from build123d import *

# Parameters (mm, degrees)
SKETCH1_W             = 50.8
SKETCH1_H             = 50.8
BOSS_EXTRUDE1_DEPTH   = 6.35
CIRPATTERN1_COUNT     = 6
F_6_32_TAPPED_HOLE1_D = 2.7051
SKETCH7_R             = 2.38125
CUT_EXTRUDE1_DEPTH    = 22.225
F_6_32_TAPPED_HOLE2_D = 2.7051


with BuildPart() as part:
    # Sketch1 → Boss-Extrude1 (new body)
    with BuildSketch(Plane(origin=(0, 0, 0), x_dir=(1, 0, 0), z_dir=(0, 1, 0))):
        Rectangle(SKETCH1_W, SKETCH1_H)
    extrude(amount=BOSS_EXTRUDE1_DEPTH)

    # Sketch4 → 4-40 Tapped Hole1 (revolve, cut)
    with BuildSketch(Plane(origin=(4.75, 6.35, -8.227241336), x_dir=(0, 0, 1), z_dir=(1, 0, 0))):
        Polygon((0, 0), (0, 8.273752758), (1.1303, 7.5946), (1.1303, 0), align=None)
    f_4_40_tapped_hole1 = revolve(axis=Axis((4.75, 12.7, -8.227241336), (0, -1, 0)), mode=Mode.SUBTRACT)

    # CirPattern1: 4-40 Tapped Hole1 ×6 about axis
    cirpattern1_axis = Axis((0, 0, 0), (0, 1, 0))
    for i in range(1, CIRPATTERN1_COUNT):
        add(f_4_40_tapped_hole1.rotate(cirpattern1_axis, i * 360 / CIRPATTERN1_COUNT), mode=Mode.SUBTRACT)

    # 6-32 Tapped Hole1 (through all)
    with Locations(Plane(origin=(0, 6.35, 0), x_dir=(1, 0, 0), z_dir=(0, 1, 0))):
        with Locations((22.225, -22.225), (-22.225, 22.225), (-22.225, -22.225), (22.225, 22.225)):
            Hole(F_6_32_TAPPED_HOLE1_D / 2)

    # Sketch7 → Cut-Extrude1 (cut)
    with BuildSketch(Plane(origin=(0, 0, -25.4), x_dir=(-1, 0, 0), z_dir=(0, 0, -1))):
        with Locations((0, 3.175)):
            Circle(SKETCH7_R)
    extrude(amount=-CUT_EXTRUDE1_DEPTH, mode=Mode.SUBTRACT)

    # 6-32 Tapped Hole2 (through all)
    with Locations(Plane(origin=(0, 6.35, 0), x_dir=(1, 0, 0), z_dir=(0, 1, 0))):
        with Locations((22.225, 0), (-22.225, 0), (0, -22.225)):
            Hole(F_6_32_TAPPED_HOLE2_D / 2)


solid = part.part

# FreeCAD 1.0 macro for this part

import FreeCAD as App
import Part
import Sketcher
Q = App.Units.Quantity

doc = App.newDocument("Part")
body = doc.addObject("PartDesign::Body", "Body")

# Sketch on XZ plane
sketch1 = body.newObject("Sketcher::SketchObject", "Sketch")
sketch1.AttachmentSupport = (doc.getObject("XZ_Plane"), [""])
sketch1.MapMode = "FlatFace"
sketch1.addGeometry([
    Part.LineSegment(App.Vector(-25.4, -25.4, 0), App.Vector(-25.4, 25.4, 0)),
    Part.LineSegment(App.Vector(-25.4, 25.4, 0), App.Vector(25.4, 25.4, 0)),
    Part.LineSegment(App.Vector(25.4, 25.4, 0), App.Vector(25.4, -25.4, 0)),
    Part.LineSegment(App.Vector(25.4, -25.4, 0), App.Vector(-25.4, -25.4, 0)),
], False)
sketch1.addConstraint([
    Sketcher.Constraint("Coincident", 0, 2, 1, 1),
    Sketcher.Constraint("Coincident", 1, 2, 2, 1),
    Sketcher.Constraint("Coincident", 2, 2, 3, 1),
    Sketcher.Constraint("Coincident", 3, 2, 0, 1),
    Sketcher.Constraint("Vertical", 0),
    Sketcher.Constraint("Horizontal", 1),
    Sketcher.Constraint("Vertical", 2),
    Sketcher.Constraint("Horizontal", 3),
    Sketcher.Constraint("Symmetric", 0, 2, 2, 2, -1, 1),
    Sketcher.Constraint("Equal", 3, 0),
    Sketcher.Constraint("DistanceX", 1, 1, 1, 2, Q("2 in")),
])
pad1 = body.newObject("PartDesign::Pad", "Pad")
pad1.Profile = sketch1
pad1.Length = Q("0.25 in")
pad1.Reversed = True

# Sketch on YZ plane
sketch2 = body.newObject("Sketcher::SketchObject", "Sketch001")
sketch2.AttachmentSupport = (doc.getObject("YZ_Plane"), [""])
sketch2.MapMode = "FlatFace"
sketch2.AttachmentOffset = App.Placement(App.Vector(0, 0, 4.75), App.Rotation())
sketch2.addGeometry([
    Part.LineSegment(App.Vector(-1.923753, -8.227241, 0), App.Vector(6.35, -8.227241, 0)),
    Part.LineSegment(App.Vector(6.35, -8.227241, 0), App.Vector(6.35, -7.096941, 0)),
    Part.LineSegment(App.Vector(6.35, -7.096941, 0), App.Vector(-1.2446, -7.096941, 0)),
    Part.LineSegment(App.Vector(-1.2446, -7.096941, 0), App.Vector(-1.923753, -8.227241, 0)),
], False)
sketch2.addGeometry(Part.LineSegment(App.Vector(6.35, -8.227241, 0), App.Vector(-1.923753, -8.227241, 0)), True)  # axis
sketch2.addConstraint([
    Sketcher.Constraint("Coincident", 0, 2, 1, 1),
    Sketcher.Constraint("Coincident", 1, 2, 2, 1),
    Sketcher.Constraint("Coincident", 2, 2, 3, 1),
    Sketcher.Constraint("Coincident", 3, 2, 0, 1),
    Sketcher.Constraint("Horizontal", 0),
    Sketcher.Constraint("Vertical", 1),
    Sketcher.Constraint("Horizontal", 2),
    Sketcher.Constraint("Horizontal", 4),
    Sketcher.Constraint("Coincident", 4, 1, 0, 2),
    Sketcher.Constraint("Equal", 0, 4),
    Sketcher.Constraint("Angle", 3, Q("-121 deg")),
    Sketcher.Constraint("DistanceX", 2, 2, 2, 1, Q("0.299 in")),
    Sketcher.Constraint("DistanceX", -1, 1, 0, 2, Q("0.25 in")),
    Sketcher.Constraint("DistanceY", 1, 1, 1, 2, Q("0.0445 in")),
    Sketcher.Constraint("DistanceY", 0, 2, -1, 1, 8.227241),
])
groove = body.newObject("PartDesign::Groove", "Groove")
groove.Profile = sketch2
groove.ReferenceAxis = (sketch2, ["Axis0"])
groove.Angle = 360
doc.recompute()

polarpattern = body.newObject("PartDesign::PolarPattern", "PolarPattern")
polarpattern.Originals = [groove]
polarpattern.Axis = (doc.getObject("Y_Axis"), [""])
polarpattern.Angle = 360
polarpattern.Occurrences = 6
body.Tip = polarpattern

# Sketch on XZ plane
sketch3 = body.newObject("Sketcher::SketchObject", "Sketch002")
sketch3.AttachmentSupport = (doc.getObject("XZ_Plane"), [""])
sketch3.MapMode = "FlatFace"
sketch3.AttachmentOffset = App.Placement(App.Vector(0, 0, -0.25 * 25.4), App.Rotation())
sketch3.addGeometry([
    Part.Circle(App.Vector(22.225, 22.225, 0), App.Vector(0, 0, 1), 1.35255),
    Part.Circle(App.Vector(-22.225, -22.225, 0), App.Vector(0, 0, 1), 1.35255),
    Part.Circle(App.Vector(-22.225, 22.225, 0), App.Vector(0, 0, 1), 1.35255),
    Part.Circle(App.Vector(22.225, -22.225, 0), App.Vector(0, 0, 1), 1.35255),
], False)
sketch3.addConstraint([
    Sketcher.Constraint("Equal", 0, 1),
    Sketcher.Constraint("Equal", 1, 2),
    Sketcher.Constraint("Equal", 2, 3),
    Sketcher.Constraint("Symmetric", 0, 3, 1, 3, -1, 1),
    Sketcher.Constraint("Symmetric", 2, 3, 3, 3, -1, 1),
    Sketcher.Constraint("Symmetric", 0, 3, 2, 3, -2),
    Sketcher.Constraint("Diameter", 0, Q("0.1065 in")),
    Sketcher.Constraint("DistanceX", 1, 3, 0, 3, Q("1.75 in")),
    Sketcher.Constraint("DistanceY", 1, 3, 0, 3, Q("1.75 in")),
])
doc.recompute()
hole = body.newObject("PartDesign::Hole", "Hole")
hole.Profile = sketch3
hole.ThreadType = "None"
hole.Diameter = Q("0.1065 in")
hole.DepthType = "ThroughAll"
hole.Reversed = True

# Sketch on XY plane
sketch4 = body.newObject("Sketcher::SketchObject", "Sketch003")
sketch4.AttachmentSupport = (doc.getObject("XY_Plane"), [""])
sketch4.MapMode = "FlatFace"
sketch4.AttachmentOffset = App.Placement(App.Vector(0, 0, -1 * 25.4), App.Rotation())
sketch4.addGeometry(Part.Circle(App.Vector(0, 3.175, 0), App.Vector(0, 0, 1), 2.38125), False)
sketch4.addConstraint([
    Sketcher.Constraint("PointOnObject", 0, 3, -2),
    Sketcher.Constraint("Diameter", 0, Q("0.1875 in")),
    Sketcher.Constraint("DistanceY", -1, 1, 0, 3, Q("0.125 in")),
])
pocket1 = body.newObject("PartDesign::Pocket", "Pocket")
pocket1.Profile = sketch4
pocket1.Length = Q("0.875 in")
pocket1.Reversed = True

# Sketch on XZ plane
sketch5 = body.newObject("Sketcher::SketchObject", "Sketch004")
sketch5.AttachmentSupport = (doc.getObject("XZ_Plane"), [""])
sketch5.MapMode = "FlatFace"
sketch5.AttachmentOffset = App.Placement(App.Vector(0, 0, -0.25 * 25.4), App.Rotation())
sketch5.addGeometry([
    Part.Circle(App.Vector(22.225, 0, 0), App.Vector(0, 0, 1), 1.35255),
    Part.Circle(App.Vector(-22.225, 0, 0), App.Vector(0, 0, 1), 1.35255),
    Part.Circle(App.Vector(0, 22.225, 0), App.Vector(0, 0, 1), 1.35255),
], False)
sketch5.addConstraint([
    Sketcher.Constraint("Equal", 0, 1),
    Sketcher.Constraint("Equal", 1, 2),
    Sketcher.Constraint("Symmetric", 0, 3, 1, 3, -1, 1),
    Sketcher.Constraint("PointOnObject", 0, 3, -1),
    Sketcher.Constraint("PointOnObject", 2, 3, -2),
    Sketcher.Constraint("Diameter", 0, Q("0.1065 in")),
    Sketcher.Constraint("DistanceX", 1, 3, 0, 3, Q("1.75 in")),
    Sketcher.Constraint("DistanceY", -1, 1, 2, 3, Q("0.875 in")),
])
doc.recompute()
hole2 = body.newObject("PartDesign::Hole", "Hole001")
hole2.Profile = sketch5
hole2.ThreadType = "None"
hole2.Diameter = Q("0.1065 in")
hole2.DepthType = "ThroughAll"
hole2.Reversed = True

doc.recompute()
